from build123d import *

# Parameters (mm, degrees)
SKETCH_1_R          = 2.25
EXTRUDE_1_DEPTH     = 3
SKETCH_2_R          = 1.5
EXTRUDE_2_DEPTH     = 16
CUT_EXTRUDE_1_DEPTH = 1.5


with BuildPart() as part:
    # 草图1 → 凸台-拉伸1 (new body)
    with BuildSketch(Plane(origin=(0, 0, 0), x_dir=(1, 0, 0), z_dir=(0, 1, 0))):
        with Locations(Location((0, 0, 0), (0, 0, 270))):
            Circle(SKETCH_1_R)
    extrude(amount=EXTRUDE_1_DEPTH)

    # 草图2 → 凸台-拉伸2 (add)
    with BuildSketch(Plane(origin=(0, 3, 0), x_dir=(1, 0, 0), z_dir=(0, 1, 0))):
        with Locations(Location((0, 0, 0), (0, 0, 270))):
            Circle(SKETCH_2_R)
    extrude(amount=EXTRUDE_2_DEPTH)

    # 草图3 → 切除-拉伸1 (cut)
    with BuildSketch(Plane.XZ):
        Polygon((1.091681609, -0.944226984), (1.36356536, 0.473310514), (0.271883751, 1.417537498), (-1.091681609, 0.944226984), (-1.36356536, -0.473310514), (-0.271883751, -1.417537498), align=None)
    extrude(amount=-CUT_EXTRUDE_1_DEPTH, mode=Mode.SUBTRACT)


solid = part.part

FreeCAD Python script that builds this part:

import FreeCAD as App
import Part
import Sketcher

V = App.Vector


def add_polygon(sketch, points):
    """Adds a closed chain of lines whose ends are joined by coincident constraints."""
    first, n = sketch.GeometryCount, len(points)
    for a, b in zip(points, points[1:] + points[:1]):
        sketch.addGeometry(Part.LineSegment(App.Vector(*a, 0), App.Vector(*b, 0)), False)
    for i in range(n):
        sketch.addConstraint(Sketcher.Constraint("Coincident", first + i, 2, first + (i + 1) % n, 1))

doc = App.newDocument("Part")
body = doc.addObject("PartDesign::Body", "Body")

# Sketch on XZ plane
sketch1 = body.newObject("Sketcher::SketchObject", "Sketch")
sketch1.AttachmentSupport = (doc.getObject("XZ_Plane"), [""])
sketch1.MapMode = "FlatFace"
sketch1.addGeometry(Part.Circle(V(0, 0, 0), V(0, 0, 1), 2.2), False)
sketch1.addConstraint([
    Sketcher.Constraint("Coincident", 0, 3, -1, 1),
    Sketcher.Constraint("Diameter", 0, 4.5),
])
pad1 = body.newObject("PartDesign::Pad", "Pad")
pad1.Profile = sketch1
pad1.Length = 3
pad1.Reversed = True

# Sketch on XZ plane
sketch2 = body.newObject("Sketcher::SketchObject", "Sketch001")
sketch2.AttachmentSupport = (doc.getObject("XZ_Plane"), [""])
sketch2.MapMode = "FlatFace"
sketch2.AttachmentOffset = App.Placement(V(0, 0, -3), App.Rotation())
sketch2.addGeometry(Part.Circle(V(0, 0, 0), V(0, 0, 1), 1.5), False)
sketch2.addConstraint([
    Sketcher.Constraint("Coincident", 0, 3, -1, 1),
    Sketcher.Constraint("Diameter", 0, 3.0),
])
pad2 = body.newObject("PartDesign::Pad", "Pad001")
pad2.Profile = sketch2
pad2.Length = 16
pad2.Reversed = True

# Sketch on XZ plane
sketch3 = body.newObject("Sketcher::SketchObject", "Sketch002")
sketch3.AttachmentSupport = (doc.getObject("XZ_Plane"), [""])
sketch3.MapMode = "FlatFace"
add_polygon(sketch3, [(1.1, -0.9), (1.4, 0.5), (0.3, 1.4), (-1.1, 0.9), (-1.4, -0.5), (-0.3, -1.4)])  # lines 0-5
sketch3.addConstraint([
    Sketcher.Constraint("Symmetric", 0, 2, 3, 2, -1, 1),
    Sketcher.Constraint("Symmetric", 1, 2, 4, 2, -1, 1),
    Sketcher.Constraint("Symmetric", 2, 2, 5, 2, -1, 1),
    Sketcher.Constraint("Equal", 0, 1),
    Sketcher.Constraint("Equal", 1, 2),
    Sketcher.Constraint("DistanceY", -1, 1, 0, 2, 0.473311),
    Sketcher.Constraint("DistanceX", 2, 2, -1, 1, 1.091682),
    Sketcher.Constraint("DistanceX", 1, 2, 0, 2, 1.091682),
    Sketcher.Constraint("DistanceY", 2, 2, 1, 2, 0.473311),
])
pocket1 = body.newObject("PartDesign::Pocket", "Pocket")
pocket1.Profile = sketch3
pocket1.Length = 1.5

doc.recompute()
